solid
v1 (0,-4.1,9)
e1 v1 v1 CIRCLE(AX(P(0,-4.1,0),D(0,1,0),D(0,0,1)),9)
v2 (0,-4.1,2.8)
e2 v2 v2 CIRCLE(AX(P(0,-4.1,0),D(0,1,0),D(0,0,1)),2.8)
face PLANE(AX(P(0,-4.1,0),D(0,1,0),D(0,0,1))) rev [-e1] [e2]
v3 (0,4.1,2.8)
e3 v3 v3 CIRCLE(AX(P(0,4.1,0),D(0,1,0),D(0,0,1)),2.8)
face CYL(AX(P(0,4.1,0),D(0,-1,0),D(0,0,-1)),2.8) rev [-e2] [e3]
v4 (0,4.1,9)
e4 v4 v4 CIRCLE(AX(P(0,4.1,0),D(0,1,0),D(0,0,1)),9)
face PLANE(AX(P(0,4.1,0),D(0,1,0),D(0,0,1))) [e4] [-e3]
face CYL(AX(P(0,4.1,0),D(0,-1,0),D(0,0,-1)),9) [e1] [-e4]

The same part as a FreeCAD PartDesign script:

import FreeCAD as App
import Part
import Sketcher
Q = App.Units.Quantity

doc = App.newDocument("Part")
body = doc.addObject("PartDesign::Body", "Body")

# Sketch on XZ plane
sketch1 = doc.addObject("Sketcher::SketchObject", "Sketch")
body.addObject(sketch1)
sketch1.AttachmentSupport = (doc.XZ_Plane, [""])
sketch1.MapMode = "FlatFace"
sketch1.addGeometry(Part.Circle(App.Vector(0, 0, 0), App.Vector(0, 0, 1), 9), False)
sketch1.addGeometry(Part.Circle(App.Vector(0, 0, 0), App.Vector(0, 0, 1), 2.8), False)
sketch1.addConstraint(Sketcher.Constraint("Coincident", 0, 3, -1, 1))
sketch1.addConstraint(Sketcher.Constraint("Coincident", 1, 3, -1, 1))
sketch1.addConstraint(Sketcher.Constraint("Diameter", 0, Q("18 mm")))
sketch1.addConstraint(Sketcher.Constraint("Diameter", 1, Q("5.6 mm")))
pad1 = doc.addObject("PartDesign::Pad", "Pad")
body.addObject(pad1)
pad1.Profile = sketch1
pad1.Length = 8.2
pad1.Midplane = True

doc.recompute()
